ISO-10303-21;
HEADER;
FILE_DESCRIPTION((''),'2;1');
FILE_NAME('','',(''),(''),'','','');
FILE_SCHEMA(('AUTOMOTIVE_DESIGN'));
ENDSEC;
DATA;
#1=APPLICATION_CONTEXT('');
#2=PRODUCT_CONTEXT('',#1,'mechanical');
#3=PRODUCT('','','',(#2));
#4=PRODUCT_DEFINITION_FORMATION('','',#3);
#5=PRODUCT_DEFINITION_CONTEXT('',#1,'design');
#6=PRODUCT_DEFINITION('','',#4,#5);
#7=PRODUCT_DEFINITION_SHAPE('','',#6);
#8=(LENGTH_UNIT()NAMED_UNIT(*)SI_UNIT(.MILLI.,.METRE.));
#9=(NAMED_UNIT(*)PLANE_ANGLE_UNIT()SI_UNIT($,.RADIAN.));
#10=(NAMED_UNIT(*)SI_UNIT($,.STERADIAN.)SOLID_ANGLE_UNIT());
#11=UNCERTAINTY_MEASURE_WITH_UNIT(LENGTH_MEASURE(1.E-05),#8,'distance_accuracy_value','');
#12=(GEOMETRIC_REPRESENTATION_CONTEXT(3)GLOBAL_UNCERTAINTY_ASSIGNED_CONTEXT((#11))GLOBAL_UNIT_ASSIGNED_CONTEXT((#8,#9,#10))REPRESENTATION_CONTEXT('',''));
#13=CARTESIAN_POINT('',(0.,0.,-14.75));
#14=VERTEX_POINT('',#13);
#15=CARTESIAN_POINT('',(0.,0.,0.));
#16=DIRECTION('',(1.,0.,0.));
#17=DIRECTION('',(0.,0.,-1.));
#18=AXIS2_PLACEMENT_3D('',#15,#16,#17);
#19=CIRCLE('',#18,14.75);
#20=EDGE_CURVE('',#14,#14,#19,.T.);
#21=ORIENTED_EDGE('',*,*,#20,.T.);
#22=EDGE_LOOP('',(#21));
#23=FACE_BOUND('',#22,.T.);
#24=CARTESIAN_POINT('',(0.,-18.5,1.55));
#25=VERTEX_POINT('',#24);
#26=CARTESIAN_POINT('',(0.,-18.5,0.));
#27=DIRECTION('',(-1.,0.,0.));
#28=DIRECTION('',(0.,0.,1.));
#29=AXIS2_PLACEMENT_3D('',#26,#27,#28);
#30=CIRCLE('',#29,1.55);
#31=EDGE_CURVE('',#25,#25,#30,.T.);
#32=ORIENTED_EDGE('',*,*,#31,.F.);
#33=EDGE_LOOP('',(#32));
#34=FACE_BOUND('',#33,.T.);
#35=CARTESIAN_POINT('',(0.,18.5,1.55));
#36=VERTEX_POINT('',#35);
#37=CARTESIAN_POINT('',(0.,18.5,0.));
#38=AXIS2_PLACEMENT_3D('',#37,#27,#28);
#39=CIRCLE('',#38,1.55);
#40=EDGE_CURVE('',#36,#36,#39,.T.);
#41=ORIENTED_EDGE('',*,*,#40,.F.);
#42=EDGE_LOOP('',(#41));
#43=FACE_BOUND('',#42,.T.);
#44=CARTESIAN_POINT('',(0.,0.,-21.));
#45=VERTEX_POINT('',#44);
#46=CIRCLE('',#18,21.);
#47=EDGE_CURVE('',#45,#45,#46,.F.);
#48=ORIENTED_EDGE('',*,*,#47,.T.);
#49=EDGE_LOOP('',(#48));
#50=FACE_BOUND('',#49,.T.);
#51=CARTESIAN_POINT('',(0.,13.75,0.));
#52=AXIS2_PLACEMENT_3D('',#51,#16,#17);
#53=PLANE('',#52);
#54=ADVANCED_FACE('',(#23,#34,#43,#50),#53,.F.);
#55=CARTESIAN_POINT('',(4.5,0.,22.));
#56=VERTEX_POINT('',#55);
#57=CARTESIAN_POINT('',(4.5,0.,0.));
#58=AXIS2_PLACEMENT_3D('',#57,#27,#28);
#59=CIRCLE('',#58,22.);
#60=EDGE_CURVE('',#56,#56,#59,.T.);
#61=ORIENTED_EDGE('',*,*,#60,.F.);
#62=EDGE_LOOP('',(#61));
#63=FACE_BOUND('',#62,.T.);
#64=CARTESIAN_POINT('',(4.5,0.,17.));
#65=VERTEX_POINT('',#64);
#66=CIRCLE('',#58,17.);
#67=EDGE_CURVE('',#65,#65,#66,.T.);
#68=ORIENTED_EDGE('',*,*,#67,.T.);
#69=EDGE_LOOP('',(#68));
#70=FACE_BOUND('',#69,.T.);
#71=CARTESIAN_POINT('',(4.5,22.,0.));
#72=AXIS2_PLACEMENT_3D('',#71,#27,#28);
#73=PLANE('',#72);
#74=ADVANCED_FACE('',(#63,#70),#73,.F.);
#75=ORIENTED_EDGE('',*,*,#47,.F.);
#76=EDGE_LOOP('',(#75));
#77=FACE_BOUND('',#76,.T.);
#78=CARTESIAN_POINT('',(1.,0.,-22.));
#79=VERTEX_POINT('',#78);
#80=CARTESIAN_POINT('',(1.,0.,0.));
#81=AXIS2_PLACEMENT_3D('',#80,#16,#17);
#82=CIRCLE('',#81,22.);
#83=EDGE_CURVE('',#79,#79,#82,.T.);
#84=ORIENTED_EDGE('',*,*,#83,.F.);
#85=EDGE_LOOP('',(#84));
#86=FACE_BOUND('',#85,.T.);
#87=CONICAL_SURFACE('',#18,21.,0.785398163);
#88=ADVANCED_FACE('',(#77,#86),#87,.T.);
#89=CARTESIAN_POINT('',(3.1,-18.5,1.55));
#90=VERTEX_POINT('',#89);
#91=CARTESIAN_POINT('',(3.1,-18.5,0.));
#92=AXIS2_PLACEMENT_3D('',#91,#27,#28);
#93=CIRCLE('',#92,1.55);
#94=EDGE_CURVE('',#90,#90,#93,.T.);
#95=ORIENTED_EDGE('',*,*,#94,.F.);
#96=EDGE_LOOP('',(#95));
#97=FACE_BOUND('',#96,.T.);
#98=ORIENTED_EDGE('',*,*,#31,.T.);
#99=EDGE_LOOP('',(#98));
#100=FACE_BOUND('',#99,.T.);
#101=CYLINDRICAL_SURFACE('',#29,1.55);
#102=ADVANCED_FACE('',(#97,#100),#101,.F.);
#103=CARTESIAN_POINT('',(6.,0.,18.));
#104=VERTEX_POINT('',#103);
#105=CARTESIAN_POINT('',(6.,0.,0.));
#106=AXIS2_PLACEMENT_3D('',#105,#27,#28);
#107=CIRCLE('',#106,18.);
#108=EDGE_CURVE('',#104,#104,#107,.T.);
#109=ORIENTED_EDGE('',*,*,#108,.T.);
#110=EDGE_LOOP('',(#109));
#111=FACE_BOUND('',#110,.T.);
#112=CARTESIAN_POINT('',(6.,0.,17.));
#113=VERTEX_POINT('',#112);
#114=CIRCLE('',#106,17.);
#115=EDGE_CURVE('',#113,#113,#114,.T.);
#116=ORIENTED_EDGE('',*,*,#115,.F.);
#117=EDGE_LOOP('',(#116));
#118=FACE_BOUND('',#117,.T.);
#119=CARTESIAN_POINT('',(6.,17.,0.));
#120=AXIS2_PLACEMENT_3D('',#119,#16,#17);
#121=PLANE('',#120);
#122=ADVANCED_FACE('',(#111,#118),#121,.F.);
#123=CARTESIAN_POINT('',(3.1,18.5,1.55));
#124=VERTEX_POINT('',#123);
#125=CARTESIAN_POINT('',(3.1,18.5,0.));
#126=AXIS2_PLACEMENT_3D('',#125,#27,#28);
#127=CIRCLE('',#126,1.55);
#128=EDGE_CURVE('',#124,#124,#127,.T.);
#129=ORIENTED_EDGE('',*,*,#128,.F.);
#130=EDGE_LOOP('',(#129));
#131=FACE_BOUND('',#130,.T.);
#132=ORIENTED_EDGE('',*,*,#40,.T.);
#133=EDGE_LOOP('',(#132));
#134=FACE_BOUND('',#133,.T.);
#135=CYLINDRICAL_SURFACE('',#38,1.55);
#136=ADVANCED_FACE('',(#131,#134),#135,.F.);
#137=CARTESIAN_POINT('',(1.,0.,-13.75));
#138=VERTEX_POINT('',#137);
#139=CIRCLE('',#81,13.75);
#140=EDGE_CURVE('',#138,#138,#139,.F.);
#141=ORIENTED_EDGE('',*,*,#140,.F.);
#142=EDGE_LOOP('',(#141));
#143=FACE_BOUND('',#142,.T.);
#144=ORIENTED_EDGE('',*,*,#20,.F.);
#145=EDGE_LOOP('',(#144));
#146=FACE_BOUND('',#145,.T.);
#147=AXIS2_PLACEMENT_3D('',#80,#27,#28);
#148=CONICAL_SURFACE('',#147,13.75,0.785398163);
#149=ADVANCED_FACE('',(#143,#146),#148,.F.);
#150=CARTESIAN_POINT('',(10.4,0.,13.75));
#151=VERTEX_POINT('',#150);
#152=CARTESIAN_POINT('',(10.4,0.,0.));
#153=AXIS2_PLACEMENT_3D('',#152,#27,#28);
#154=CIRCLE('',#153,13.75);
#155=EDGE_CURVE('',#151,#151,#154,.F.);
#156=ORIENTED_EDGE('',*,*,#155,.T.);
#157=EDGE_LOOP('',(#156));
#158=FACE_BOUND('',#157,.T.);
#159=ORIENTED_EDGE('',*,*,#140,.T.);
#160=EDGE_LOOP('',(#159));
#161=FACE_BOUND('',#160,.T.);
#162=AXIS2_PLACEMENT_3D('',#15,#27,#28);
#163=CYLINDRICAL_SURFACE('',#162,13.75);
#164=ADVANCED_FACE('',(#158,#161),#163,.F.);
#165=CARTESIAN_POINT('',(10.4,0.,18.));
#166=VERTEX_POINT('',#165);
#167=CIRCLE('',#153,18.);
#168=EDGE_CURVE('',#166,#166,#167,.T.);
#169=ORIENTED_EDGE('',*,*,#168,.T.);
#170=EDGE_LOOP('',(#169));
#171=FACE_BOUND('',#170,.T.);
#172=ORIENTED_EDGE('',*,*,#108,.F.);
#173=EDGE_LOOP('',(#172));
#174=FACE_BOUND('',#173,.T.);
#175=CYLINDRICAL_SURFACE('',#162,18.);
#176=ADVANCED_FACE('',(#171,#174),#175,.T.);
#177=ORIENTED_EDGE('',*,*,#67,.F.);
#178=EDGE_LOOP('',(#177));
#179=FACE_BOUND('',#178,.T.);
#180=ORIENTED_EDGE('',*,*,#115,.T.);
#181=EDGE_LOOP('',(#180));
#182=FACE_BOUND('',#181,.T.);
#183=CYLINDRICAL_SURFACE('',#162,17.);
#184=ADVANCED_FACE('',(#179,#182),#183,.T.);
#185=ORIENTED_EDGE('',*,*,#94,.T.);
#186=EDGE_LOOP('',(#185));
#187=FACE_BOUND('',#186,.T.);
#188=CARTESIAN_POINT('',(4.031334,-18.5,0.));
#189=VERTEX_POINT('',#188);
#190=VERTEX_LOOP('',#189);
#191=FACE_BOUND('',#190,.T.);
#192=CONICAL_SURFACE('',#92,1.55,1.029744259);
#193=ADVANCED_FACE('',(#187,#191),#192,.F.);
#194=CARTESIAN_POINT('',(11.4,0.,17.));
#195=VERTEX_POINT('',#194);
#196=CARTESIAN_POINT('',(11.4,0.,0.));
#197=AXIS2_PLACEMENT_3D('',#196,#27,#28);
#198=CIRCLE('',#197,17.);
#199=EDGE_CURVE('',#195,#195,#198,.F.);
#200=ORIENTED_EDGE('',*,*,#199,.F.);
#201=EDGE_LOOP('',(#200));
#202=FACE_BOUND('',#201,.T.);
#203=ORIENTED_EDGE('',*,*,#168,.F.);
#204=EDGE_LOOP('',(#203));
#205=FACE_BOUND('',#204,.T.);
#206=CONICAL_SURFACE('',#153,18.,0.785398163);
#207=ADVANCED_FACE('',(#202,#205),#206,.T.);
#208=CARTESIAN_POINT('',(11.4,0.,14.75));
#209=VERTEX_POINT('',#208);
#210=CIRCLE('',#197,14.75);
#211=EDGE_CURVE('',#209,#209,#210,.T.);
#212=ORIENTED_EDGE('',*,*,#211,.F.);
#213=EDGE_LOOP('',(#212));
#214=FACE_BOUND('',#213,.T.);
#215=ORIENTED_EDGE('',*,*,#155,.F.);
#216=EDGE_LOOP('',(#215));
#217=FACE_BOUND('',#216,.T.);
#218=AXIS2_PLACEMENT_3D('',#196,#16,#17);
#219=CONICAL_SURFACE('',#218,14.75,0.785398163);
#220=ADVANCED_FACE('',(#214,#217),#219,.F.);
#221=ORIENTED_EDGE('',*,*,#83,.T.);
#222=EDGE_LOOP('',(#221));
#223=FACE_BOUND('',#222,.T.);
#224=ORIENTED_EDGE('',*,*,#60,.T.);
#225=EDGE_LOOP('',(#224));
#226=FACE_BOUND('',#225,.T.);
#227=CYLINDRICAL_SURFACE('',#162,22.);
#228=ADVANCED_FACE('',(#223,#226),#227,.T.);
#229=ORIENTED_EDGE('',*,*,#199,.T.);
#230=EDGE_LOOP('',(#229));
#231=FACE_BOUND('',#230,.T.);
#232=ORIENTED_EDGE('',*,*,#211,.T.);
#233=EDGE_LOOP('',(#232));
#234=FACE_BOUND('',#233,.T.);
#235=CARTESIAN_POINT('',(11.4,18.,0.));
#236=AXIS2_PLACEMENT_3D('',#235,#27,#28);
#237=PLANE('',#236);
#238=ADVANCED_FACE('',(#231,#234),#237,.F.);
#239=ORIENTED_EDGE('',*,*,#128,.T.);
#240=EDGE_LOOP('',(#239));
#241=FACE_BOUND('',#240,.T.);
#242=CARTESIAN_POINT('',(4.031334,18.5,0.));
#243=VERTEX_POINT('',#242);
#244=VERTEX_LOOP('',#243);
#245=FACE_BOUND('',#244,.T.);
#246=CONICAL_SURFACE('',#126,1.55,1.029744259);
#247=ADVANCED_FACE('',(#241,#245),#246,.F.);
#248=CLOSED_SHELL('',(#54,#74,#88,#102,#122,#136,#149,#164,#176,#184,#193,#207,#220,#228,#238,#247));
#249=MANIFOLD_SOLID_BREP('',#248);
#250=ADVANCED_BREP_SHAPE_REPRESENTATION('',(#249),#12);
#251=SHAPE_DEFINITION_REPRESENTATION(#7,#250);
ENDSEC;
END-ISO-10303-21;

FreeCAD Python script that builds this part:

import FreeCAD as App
import Part
import Sketcher
from FreeCAD import Vector
Q = App.Units.Quantity


def edges_at(feature, points):
    """Names of the edges that pass closest to the given points."""
    edges = feature.Shape.Edges
    near = lambda p: min(range(len(edges)), key=lambda i: edges[i].distToShape(Part.Vertex(*p))[0])
    return sorted({f"Edge{near(p) + 1}" for p in points})


def add_polygon(sketch, points):
    """Adds a closed chain of lines whose ends are joined by coincident constraints."""
    first, n = sketch.GeometryCount, len(points)
    for a, b in zip(points, points[1:] + points[:1]):
        sketch.addGeometry(Part.LineSegment(App.Vector(*a, 0), App.Vector(*b, 0)), False)
    for i in range(n):
        sketch.addConstraint(Sketcher.Constraint("Coincident", first + i, 2, first + (i + 1) % n, 1))

doc = App.newDocument("Part")
body = doc.addObject("PartDesign::Body", "Body")

# Sketch on XY plane
sketch1 = body.newObject("Sketcher::SketchObject", "Sketch")
sketch1.AttachmentSupport = (doc.getObject("XY_Plane"), [""])
sketch1.MapMode = "FlatFace"
add_polygon(sketch1, [(0, 22), (0, 13.8), (11.4, 13.8), (11.4, 18), (6, 18), (6, 17), (4.5, 17), (4.5, 22)])  # lines 0-7
sketch1.addConstraint([
    Sketcher.Constraint("Vertical", 0),
    Sketcher.Constraint("Horizontal", 1),
    Sketcher.Constraint("Vertical", 2),
    Sketcher.Constraint("Horizontal", 3),
    Sketcher.Constraint("Vertical", 4),
    Sketcher.Constraint("Horizontal", 5),
    Sketcher.Constraint("Vertical", 6),
    Sketcher.Constraint("Horizontal", 7),
    Sketcher.Constraint("PointOnObject", 0, 2, -2),
    Sketcher.Constraint("DistanceY", 4, 2, 4, 1, Q("1 mm")),
    Sketcher.Constraint("DistanceY", 6, 1, 6, 2, Q("5 mm")),
    Sketcher.Constraint("DistanceX", 1, 1, 1, 2, Q("11.4 mm")),
    Sketcher.Constraint("DistanceX", 3, 2, 3, 1, Q("5.4 mm")),
    Sketcher.Constraint("DistanceX", 5, 2, 5, 1, Q("1.5 mm")),
    Sketcher.Constraint("DistanceY", -1, 1, 2, 2, Q("18 mm")),
    Sketcher.Constraint("DistanceY", 0, 2, 0, 1, Q("8.25 mm")),
])
revolution = body.newObject("PartDesign::Revolution", "Revolution")
revolution.Profile = sketch1
revolution.ReferenceAxis = (sketch1, ["H_Axis"])
revolution.Angle = 360
doc.recompute()

chamfer = body.newObject("PartDesign::Chamfer", "Chamfer")
chamfer.Base = (revolution, edges_at(revolution, [
    (11.4, 0, -13.75),
    (11.4, 0, -18),
    (0, 0, -22),
    (0, 0, -13.75),
]))
chamfer.Size = 1

# Sketch on XZ plane
sketch2 = body.newObject("Sketcher::SketchObject", "Sketch001")
sketch2.AttachmentSupport = (doc.getObject("XZ_Plane"), [""])
sketch2.MapMode = "FlatFace"
sketch2.AttachmentOffset = App.Placement(Vector(0, 0, -18.5), App.Rotation())
add_polygon(sketch2, [(4, 0), (0, 0), (0, 1.6), (3.1, 1.6)])  # lines 0-3
sketch2.addConstraint([
    Sketcher.Constraint("Horizontal", 0),
    Sketcher.Constraint("Vertical", 1),
    Sketcher.Constraint("Horizontal", 2),
    Sketcher.Constraint("Coincident", 0, 2, -1, 1),
    Sketcher.Constraint("Angle", 3, Q("-59 deg")),
    Sketcher.Constraint("DistanceX", 2, 1, 2, 2, Q("3.1 mm")),
    Sketcher.Constraint("DistanceY", 1, 1, 1, 2, Q("1.55 mm")),
])
groove = body.newObject("PartDesign::Groove", "Groove")
groove.Profile = sketch2
groove.ReferenceAxis = (sketch2, ["H_Axis"])
groove.Angle = 360
doc.recompute()

mirrored = body.newObject("PartDesign::Mirrored", "Mirrored")
mirrored.Originals = [groove]
mirrored.MirrorPlane = (doc.getObject("XZ_Plane"), [""])
body.Tip = mirrored

doc.recompute()
